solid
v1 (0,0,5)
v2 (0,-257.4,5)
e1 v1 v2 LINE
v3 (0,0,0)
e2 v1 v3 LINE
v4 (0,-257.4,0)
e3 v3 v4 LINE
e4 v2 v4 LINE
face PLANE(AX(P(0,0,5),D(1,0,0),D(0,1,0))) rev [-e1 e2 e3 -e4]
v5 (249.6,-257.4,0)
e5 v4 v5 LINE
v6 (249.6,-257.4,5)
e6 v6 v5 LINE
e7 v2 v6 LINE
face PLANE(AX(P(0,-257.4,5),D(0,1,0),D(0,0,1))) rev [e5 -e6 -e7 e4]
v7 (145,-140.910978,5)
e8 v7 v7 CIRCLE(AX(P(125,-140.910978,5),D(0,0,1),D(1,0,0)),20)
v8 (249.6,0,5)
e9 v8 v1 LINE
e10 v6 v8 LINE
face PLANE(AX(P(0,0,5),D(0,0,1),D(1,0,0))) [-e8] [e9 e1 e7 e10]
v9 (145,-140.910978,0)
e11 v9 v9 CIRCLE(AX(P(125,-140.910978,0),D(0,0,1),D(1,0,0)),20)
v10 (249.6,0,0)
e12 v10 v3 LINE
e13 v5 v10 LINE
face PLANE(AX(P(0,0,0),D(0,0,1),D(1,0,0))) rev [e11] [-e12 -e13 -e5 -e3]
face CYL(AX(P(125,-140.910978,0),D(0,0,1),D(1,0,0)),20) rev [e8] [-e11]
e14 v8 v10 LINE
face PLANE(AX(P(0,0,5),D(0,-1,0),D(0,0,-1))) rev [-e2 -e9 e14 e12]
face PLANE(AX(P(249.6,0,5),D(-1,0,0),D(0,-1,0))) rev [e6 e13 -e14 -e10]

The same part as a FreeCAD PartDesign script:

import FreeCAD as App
import Part
import Sketcher
from FreeCAD import Vector

doc = App.newDocument("Part")
body = doc.addObject("PartDesign::Body", "Body")

# Sketch on XY plane
sketch1 = body.newObject("Sketcher::SketchObject", "Sketch")
sketch1.AttachmentSupport = (doc.getObject("XY_Plane"), [""])
sketch1.MapMode = "FlatFace"
sketch1.addGeometry([
    Part.LineSegment(Vector(0, 0, 0), Vector(0, -257, 0)),
    Part.LineSegment(Vector(0, -257, 0), Vector(250, -257, 0)),
    Part.LineSegment(Vector(250, -257, 0), Vector(250, 0, 0)),
    Part.LineSegment(Vector(250, 0, 0), Vector(0, 0, 0)),
], False)
sketch1.addConstraint([
    Sketcher.Constraint("Coincident", 0, 2, 1, 1),
    Sketcher.Constraint("Coincident", 1, 2, 2, 1),
    Sketcher.Constraint("Coincident", 2, 2, 3, 1),
    Sketcher.Constraint("Coincident", 3, 2, 0, 1),
    Sketcher.Constraint("Vertical", 0),
    Sketcher.Constraint("Horizontal", 1),
    Sketcher.Constraint("Vertical", 2),
    Sketcher.Constraint("Horizontal", 3),
    Sketcher.Constraint("Coincident", 3, 2, -1, 1),
    Sketcher.Constraint("DistanceX", 1, 1, 1, 2, 249.6),
    Sketcher.Constraint("DistanceY", 0, 2, 0, 1, 257.4),
])
pad1 = body.newObject("PartDesign::Pad", "Pad")
pad1.Profile = sketch1
pad1.Length = 5

# Sketch on XY plane
sketch2 = body.newObject("Sketcher::SketchObject", "Sketch001")
sketch2.AttachmentSupport = (doc.getObject("XY_Plane"), [""])
sketch2.MapMode = "FlatFace"
sketch2.AttachmentOffset = App.Placement(Vector(0, 0, 5), App.Rotation())
sketch2.addGeometry(Part.Circle(Vector(125, -141, 0), Vector(0, 0, 1), 20), False)
sketch2.addConstraint([
    Sketcher.Constraint("Diameter", 0, 40.0),
    Sketcher.Constraint("DistanceX", -1, 1, 0, 3, 125.0),
    Sketcher.Constraint("DistanceY", 0, 3, -1, 1, 140.910978),
])
pocket1 = body.newObject("PartDesign::Pocket", "Pocket")
pocket1.Profile = sketch2
pocket1.Type = "ThroughAll"

doc.recompute()
